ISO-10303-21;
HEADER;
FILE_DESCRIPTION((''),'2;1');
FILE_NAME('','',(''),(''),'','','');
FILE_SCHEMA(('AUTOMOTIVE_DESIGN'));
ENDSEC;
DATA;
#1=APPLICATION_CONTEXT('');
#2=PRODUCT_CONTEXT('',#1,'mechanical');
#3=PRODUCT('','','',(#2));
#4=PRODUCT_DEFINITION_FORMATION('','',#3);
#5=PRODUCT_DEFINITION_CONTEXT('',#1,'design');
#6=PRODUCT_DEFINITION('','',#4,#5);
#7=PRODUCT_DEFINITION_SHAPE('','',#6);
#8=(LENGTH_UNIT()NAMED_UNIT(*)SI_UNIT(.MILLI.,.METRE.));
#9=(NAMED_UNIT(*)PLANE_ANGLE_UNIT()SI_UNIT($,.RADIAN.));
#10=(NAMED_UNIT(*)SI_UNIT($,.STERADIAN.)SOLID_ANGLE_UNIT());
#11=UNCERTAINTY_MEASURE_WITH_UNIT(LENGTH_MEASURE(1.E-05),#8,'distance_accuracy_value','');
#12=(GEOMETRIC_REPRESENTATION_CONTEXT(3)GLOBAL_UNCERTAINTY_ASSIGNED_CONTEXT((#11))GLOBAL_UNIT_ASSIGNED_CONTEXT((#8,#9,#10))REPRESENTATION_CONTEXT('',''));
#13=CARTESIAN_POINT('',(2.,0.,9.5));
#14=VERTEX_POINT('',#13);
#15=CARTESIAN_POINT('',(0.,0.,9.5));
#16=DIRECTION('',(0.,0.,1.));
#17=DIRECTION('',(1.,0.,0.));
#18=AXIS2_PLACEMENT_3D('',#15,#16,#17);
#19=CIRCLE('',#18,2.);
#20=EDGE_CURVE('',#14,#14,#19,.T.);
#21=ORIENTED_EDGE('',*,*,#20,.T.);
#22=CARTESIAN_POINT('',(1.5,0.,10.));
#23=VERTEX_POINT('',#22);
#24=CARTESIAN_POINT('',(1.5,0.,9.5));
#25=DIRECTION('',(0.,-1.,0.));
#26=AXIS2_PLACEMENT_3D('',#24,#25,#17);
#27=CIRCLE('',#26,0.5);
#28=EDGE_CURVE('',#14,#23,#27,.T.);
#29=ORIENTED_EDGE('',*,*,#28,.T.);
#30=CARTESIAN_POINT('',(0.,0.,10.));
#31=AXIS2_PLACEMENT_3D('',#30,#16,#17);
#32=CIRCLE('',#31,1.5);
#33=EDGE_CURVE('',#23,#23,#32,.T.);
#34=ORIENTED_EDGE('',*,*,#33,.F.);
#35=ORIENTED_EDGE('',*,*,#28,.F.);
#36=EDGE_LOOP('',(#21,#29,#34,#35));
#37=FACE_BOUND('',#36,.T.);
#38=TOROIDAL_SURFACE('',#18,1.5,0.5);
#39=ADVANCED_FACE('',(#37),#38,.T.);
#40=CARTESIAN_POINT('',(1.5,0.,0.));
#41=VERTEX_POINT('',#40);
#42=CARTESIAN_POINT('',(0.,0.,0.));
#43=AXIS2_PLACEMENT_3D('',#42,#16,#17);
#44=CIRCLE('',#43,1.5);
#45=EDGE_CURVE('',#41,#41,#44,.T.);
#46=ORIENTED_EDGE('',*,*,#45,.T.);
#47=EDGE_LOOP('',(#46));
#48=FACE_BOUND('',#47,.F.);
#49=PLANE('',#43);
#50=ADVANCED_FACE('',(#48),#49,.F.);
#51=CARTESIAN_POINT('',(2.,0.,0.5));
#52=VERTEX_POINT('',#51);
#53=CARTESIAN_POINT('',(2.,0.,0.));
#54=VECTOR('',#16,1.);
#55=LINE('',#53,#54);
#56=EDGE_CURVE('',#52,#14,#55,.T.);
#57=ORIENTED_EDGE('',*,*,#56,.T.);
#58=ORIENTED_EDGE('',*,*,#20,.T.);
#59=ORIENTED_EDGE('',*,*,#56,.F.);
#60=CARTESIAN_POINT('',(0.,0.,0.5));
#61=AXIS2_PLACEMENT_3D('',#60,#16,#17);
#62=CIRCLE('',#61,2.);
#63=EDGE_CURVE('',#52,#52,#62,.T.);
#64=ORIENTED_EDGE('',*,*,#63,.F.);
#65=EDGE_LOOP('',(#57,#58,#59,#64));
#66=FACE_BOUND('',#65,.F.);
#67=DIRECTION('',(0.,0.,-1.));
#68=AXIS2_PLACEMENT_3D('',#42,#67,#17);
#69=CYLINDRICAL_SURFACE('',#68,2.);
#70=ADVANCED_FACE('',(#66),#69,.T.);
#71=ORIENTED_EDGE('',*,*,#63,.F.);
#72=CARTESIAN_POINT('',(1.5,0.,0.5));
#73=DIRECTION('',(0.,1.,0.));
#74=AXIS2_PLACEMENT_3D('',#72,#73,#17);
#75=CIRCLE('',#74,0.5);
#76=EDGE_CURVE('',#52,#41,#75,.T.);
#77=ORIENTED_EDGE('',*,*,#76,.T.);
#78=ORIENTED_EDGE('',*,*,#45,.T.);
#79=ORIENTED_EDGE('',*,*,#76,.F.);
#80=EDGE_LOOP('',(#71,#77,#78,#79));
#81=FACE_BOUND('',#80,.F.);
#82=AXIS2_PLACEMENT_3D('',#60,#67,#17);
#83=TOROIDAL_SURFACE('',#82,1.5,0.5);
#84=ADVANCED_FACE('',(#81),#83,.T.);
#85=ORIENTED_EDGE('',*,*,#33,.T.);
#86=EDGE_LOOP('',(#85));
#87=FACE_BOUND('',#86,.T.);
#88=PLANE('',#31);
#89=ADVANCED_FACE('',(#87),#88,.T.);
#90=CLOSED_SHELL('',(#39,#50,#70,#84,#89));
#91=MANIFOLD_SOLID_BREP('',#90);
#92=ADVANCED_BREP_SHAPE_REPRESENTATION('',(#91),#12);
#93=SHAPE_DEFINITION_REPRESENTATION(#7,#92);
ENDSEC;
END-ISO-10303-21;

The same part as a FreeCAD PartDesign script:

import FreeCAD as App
import Part
import Sketcher
Q = App.Units.Quantity


def edges_at(feature, points):
    """Names of the edges that pass closest to the given points."""
    edges = feature.Shape.Edges
    near = lambda p: min(range(len(edges)), key=lambda i: edges[i].distToShape(Part.Vertex(*p))[0])
    return sorted({f"Edge{near(p) + 1}" for p in points})

doc = App.newDocument("Part")
body = doc.addObject("PartDesign::Body", "Body")

sketch1 = doc.addObject("Sketcher::SketchObject", "Sketch")
body.addObject(sketch1)
sketch1.AttachmentSupport = (doc.XY_Plane, [""])
sketch1.MapMode = "FlatFace"
sketch1.addGeometry(Part.Circle(App.Vector(0, 0, 0), App.Vector(0, 0, 1), 2), False)
sketch1.addConstraint([
    Sketcher.Constraint("Coincident", 0, 3, -1, 1),
    Sketcher.Constraint("Diameter", 0, Q("4 mm")),
])
pad1 = doc.addObject("PartDesign::Pad", "Pad")
body.addObject(pad1)
pad1.Profile = sketch1
pad1.Length = 10
doc.recompute()

fillet = doc.addObject("PartDesign::Fillet", "Fillet")
body.addObject(fillet)
fillet.Base = (pad1, edges_at(pad1, [(-2, 0, 10), (-2, 0, 0)]))
fillet.Radius = 0.5

doc.recompute()
